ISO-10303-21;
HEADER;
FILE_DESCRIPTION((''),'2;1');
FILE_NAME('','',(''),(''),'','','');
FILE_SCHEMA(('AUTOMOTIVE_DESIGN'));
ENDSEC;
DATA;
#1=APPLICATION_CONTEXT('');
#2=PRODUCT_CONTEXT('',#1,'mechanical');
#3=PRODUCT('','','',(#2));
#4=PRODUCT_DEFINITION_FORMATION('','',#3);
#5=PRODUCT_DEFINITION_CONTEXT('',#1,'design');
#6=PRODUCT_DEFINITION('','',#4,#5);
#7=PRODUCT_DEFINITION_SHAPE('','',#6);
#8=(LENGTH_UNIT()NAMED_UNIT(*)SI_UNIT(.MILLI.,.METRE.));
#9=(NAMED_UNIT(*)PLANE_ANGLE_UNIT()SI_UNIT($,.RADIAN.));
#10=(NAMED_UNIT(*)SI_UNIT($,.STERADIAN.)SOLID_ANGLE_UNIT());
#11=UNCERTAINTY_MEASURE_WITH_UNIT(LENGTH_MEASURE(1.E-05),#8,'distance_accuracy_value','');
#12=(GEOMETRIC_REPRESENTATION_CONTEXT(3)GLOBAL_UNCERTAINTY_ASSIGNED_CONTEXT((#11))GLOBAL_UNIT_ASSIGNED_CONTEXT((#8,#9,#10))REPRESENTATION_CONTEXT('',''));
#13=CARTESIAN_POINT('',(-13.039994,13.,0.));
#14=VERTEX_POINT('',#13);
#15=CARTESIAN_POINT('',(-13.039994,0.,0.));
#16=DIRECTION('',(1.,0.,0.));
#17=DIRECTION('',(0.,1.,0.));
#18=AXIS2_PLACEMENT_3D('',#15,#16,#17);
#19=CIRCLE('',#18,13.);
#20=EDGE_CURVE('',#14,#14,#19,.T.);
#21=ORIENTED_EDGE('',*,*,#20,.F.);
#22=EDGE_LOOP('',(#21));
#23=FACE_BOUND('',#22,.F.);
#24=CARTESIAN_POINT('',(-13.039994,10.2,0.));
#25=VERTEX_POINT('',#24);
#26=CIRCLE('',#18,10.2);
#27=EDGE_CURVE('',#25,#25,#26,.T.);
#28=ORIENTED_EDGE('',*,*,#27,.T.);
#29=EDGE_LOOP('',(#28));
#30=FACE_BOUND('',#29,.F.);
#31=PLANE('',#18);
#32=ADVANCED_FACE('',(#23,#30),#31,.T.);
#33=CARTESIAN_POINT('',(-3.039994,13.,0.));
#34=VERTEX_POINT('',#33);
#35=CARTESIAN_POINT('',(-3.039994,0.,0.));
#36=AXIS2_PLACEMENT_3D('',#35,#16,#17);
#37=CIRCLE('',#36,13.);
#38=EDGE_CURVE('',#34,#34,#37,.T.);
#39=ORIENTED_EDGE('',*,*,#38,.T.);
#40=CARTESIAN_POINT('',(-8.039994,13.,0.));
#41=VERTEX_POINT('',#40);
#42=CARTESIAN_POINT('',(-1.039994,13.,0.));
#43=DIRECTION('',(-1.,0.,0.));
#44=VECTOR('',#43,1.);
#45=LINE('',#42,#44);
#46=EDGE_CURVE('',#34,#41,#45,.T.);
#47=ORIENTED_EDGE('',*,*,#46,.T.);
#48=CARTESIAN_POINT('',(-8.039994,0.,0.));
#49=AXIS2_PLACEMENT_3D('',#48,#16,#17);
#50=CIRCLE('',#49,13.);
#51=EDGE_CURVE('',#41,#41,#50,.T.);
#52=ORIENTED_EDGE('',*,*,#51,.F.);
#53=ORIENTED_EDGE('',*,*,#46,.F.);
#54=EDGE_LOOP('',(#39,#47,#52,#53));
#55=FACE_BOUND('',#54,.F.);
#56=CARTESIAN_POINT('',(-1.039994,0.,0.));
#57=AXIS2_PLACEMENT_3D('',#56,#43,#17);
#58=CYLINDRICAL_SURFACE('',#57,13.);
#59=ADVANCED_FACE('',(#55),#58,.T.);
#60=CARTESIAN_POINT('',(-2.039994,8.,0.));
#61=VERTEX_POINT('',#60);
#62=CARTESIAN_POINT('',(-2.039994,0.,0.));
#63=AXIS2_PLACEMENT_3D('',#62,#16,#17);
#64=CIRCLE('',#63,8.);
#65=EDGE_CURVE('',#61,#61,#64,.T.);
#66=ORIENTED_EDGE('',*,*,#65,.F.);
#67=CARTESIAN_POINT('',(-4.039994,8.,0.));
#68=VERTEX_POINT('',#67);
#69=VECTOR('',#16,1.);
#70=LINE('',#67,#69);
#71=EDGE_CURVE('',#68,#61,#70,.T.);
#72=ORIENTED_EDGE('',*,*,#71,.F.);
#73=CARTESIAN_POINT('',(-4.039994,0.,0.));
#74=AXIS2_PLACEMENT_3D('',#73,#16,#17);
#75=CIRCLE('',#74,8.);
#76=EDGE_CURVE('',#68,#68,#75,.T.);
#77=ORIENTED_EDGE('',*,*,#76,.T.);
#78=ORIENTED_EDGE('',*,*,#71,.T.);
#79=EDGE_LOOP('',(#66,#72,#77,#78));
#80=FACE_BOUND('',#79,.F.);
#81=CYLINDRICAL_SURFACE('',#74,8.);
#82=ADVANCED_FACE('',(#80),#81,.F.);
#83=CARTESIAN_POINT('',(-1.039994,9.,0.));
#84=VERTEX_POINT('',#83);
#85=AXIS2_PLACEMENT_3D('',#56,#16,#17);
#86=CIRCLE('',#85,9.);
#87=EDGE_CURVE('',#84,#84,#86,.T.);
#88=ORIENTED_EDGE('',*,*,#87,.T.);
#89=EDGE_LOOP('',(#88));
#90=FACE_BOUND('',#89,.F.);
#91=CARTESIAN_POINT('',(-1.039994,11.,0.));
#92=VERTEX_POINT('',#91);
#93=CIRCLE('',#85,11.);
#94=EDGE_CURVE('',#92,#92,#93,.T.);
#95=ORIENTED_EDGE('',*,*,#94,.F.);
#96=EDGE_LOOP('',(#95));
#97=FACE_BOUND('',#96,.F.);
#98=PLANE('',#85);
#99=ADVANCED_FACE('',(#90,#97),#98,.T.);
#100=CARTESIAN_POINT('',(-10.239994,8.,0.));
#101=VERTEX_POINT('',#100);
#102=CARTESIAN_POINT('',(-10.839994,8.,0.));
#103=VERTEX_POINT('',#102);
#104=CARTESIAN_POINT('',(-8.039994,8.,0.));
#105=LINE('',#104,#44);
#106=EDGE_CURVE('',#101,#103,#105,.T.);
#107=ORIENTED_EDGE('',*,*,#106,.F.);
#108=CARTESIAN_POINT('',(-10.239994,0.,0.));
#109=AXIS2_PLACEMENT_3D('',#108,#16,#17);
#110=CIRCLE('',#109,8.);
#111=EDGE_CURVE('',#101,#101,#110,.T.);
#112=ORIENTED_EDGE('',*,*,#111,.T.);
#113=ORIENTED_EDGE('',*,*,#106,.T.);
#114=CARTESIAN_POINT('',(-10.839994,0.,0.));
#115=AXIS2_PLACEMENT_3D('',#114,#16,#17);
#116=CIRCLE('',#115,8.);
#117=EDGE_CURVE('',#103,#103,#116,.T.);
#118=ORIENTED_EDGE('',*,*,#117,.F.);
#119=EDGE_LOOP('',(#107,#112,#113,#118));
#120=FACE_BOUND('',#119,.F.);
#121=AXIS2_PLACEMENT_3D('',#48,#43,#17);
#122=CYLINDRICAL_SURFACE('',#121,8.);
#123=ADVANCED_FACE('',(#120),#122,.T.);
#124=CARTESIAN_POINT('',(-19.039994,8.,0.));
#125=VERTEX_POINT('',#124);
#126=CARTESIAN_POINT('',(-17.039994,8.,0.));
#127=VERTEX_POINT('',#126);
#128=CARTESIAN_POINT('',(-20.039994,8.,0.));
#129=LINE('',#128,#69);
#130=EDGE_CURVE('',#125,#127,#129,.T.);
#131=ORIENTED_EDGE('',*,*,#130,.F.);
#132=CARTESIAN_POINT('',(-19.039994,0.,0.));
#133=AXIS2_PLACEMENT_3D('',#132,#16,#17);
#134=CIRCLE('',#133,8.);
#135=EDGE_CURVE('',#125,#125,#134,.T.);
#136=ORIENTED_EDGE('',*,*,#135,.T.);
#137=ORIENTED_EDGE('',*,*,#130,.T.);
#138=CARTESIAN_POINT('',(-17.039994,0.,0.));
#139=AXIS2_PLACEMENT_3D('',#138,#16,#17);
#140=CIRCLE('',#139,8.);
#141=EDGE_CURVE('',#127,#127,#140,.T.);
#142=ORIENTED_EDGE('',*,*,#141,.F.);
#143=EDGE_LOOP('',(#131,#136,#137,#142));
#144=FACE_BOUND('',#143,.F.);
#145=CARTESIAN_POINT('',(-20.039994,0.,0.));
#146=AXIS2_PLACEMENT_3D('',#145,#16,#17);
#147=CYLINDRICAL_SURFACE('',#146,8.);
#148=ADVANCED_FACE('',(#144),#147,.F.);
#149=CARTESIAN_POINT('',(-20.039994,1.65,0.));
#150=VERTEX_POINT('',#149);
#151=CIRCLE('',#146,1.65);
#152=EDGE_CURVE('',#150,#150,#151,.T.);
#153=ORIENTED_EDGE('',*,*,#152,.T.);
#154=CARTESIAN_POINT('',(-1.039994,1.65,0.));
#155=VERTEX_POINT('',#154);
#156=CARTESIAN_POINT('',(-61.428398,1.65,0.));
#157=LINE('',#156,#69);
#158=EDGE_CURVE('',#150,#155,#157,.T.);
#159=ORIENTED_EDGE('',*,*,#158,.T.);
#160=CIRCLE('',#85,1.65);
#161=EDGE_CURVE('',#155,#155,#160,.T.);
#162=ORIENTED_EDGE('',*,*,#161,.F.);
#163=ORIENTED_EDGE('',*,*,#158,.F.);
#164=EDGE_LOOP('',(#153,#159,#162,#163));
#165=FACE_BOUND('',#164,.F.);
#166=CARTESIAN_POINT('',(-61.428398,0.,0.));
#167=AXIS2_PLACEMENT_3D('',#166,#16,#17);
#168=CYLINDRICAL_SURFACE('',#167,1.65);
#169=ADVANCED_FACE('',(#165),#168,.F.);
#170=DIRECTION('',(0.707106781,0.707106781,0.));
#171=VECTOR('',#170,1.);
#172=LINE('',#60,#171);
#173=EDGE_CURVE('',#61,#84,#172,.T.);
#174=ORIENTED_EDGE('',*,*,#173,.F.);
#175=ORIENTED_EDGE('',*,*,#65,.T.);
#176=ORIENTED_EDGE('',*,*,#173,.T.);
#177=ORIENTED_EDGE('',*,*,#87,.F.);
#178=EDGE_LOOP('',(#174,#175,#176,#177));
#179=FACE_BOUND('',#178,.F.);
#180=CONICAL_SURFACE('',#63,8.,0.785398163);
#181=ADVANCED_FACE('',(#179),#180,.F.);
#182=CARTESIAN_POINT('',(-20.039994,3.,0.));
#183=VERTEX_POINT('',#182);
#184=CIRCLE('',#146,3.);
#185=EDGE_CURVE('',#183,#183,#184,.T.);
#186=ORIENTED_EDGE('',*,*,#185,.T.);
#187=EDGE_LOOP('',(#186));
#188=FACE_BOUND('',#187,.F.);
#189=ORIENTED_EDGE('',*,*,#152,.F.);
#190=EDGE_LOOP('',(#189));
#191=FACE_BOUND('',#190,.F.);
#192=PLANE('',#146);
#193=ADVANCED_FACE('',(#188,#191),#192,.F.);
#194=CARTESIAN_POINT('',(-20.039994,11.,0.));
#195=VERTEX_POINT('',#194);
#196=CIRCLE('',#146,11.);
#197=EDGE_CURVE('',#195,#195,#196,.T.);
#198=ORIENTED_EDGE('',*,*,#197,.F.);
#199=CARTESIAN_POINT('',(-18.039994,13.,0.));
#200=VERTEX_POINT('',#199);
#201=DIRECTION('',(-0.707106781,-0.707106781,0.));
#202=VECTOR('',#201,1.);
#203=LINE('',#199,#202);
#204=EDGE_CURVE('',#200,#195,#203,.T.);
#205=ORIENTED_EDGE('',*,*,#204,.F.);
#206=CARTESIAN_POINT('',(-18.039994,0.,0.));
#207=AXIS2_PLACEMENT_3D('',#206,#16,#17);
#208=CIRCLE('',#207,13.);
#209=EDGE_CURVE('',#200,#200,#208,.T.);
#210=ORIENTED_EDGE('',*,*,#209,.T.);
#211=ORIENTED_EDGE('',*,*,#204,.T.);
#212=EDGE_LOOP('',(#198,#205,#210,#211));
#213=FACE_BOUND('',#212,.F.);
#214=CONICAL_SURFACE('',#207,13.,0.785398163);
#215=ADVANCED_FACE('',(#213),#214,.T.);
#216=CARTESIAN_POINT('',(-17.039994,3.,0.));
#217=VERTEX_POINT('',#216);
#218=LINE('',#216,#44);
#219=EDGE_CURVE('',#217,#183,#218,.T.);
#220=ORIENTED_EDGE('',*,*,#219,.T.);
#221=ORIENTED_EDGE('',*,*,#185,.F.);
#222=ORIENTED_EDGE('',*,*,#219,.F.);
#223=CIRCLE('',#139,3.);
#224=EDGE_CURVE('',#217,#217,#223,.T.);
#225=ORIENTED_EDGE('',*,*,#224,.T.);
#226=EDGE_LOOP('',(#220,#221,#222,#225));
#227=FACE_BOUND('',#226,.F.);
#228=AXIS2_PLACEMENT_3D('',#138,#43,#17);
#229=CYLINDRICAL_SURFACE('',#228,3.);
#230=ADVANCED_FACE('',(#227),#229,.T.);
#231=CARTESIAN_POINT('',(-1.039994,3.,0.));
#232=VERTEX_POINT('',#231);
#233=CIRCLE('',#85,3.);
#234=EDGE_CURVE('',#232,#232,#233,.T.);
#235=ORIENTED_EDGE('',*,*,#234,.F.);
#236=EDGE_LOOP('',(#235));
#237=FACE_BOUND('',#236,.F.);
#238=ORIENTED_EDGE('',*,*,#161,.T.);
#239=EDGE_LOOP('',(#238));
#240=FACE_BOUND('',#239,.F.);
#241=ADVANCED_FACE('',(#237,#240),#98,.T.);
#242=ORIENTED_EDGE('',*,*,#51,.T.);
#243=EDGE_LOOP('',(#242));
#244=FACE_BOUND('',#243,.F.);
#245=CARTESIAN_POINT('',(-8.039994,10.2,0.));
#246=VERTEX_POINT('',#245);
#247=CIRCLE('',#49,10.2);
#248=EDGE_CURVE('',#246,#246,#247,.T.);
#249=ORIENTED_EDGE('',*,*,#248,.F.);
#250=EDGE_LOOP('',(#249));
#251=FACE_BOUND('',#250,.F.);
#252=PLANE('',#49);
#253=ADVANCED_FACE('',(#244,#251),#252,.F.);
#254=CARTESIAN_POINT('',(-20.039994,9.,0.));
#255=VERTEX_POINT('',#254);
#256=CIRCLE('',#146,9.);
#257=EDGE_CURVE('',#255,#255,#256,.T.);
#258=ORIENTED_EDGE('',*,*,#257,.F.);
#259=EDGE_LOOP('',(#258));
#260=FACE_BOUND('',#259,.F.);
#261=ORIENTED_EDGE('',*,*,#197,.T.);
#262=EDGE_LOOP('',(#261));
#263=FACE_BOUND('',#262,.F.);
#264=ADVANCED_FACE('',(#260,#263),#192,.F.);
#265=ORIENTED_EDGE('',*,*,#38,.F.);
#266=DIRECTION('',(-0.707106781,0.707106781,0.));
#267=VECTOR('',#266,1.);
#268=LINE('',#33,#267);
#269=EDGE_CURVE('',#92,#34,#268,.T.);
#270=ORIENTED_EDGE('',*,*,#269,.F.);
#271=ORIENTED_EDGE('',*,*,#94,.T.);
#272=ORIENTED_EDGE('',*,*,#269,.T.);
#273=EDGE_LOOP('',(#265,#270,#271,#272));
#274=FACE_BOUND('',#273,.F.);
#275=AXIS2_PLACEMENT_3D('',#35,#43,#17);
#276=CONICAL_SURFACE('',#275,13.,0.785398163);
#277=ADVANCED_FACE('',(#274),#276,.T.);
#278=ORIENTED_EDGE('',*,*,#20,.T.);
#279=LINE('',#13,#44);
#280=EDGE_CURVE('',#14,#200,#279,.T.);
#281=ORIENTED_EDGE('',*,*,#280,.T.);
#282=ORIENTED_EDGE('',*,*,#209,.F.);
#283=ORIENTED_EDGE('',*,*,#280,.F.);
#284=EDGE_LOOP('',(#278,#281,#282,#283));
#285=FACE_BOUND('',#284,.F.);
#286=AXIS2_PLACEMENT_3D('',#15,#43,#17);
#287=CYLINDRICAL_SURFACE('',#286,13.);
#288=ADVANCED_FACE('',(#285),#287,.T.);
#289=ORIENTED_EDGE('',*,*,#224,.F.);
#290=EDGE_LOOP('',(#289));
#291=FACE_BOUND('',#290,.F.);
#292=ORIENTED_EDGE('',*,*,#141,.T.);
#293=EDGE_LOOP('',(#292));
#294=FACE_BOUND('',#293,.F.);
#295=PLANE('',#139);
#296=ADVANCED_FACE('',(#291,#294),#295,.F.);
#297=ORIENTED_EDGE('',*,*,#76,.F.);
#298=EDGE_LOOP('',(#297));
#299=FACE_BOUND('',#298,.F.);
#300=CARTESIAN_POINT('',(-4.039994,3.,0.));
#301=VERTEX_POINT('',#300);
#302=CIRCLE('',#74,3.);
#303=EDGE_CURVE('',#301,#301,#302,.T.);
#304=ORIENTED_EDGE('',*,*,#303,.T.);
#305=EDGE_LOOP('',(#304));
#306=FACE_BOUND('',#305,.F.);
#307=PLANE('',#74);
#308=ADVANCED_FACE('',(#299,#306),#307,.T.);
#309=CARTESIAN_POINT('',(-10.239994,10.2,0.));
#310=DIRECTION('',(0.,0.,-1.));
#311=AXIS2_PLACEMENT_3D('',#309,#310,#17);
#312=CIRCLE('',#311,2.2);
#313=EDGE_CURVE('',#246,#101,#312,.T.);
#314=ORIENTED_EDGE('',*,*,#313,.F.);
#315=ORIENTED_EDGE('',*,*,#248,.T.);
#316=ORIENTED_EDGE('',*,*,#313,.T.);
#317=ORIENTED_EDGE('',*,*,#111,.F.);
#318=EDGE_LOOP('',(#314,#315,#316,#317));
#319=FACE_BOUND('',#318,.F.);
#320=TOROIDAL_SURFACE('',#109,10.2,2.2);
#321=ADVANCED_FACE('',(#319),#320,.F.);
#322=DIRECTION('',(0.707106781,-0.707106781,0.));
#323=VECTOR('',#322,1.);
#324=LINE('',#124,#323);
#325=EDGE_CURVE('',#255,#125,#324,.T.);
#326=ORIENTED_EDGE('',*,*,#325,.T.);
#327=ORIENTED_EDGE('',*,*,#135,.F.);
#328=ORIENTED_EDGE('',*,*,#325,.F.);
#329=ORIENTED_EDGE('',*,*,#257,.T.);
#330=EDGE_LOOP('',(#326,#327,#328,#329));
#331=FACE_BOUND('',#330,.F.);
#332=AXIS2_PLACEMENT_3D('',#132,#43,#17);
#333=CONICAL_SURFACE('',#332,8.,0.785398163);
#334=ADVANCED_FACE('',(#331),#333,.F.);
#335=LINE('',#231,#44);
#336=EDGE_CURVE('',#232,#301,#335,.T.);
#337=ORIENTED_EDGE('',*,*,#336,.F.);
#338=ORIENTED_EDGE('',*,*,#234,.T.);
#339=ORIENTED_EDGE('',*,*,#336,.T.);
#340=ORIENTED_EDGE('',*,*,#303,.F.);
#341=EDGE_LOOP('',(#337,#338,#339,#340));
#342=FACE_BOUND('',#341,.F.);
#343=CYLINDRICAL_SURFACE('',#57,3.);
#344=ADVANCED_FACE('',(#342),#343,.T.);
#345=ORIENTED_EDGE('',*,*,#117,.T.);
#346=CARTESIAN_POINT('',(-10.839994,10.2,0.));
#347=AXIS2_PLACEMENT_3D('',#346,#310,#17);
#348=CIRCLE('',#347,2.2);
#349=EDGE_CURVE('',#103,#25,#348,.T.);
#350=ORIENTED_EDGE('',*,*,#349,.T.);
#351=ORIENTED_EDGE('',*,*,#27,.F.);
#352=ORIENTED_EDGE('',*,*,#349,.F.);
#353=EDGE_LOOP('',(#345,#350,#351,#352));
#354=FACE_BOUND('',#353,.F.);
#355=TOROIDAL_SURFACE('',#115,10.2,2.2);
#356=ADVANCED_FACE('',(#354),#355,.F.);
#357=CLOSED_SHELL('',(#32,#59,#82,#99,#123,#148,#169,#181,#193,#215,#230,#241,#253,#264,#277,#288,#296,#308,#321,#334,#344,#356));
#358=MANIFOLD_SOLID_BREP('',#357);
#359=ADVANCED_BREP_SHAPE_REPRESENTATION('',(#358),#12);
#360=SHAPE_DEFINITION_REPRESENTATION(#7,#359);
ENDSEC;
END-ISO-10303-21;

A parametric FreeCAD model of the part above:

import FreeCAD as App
import Part
import Sketcher
Q = App.Units.Quantity


def edges_at(feature, points):
    """Names of the edges that pass closest to the given points."""
    edges = feature.Shape.Edges
    near = lambda p: min(range(len(edges)), key=lambda i: edges[i].distToShape(Part.Vertex(*p))[0])
    return sorted({f"Edge{near(p) + 1}" for p in points})

doc = App.newDocument("Part")
params = doc.addObject("Spreadsheet::Sheet", "Params")
for row, (alias, value) in enumerate([
    ("sketch1_width", "19 mm"),
    ("sketch1_width2", "3 mm"),
    ("sketch1_width3", "7 mm"),
    ("revolution_angle", "360 deg"),
    ("chamfer_size", "1 mm"),
    ("chamfer2_size", "2 mm"),
    ("fillet_radius", "2.2 mm"),
    ("sketch2_diameter", "3.3 mm"),
    ("hole_diameter", "3.3 mm"),
], start=1):
    params.set(f"A{row}", alias)
    params.set(f"B{row}", "=" + value)
    params.setAlias(f"B{row}", alias)

body = doc.addObject("PartDesign::Body", "Body")

# Sketch on XY plane
sketch1 = doc.addObject("Sketcher::SketchObject", "Sketch")
body.addObject(sketch1)
sketch1.AttachmentSupport = (doc.XY_Plane, [""])
sketch1.MapMode = "FlatFace"
sketch1.addGeometry([
    Part.LineSegment(App.Vector(-20.039994, 3, 0), App.Vector(-20.039994, 0, 0)),  # 0
    Part.LineSegment(App.Vector(-20.039994, 0, 0), App.Vector(-1.039994, 0, 0)),  # 1
    Part.LineSegment(App.Vector(-1.039994, 0, 0), App.Vector(-1.039994, 3, 0)),  # 2
    Part.LineSegment(App.Vector(-1.039994, 3, 0), App.Vector(-4.039994, 3, 0)),  # 3
    Part.LineSegment(App.Vector(-4.039994, 3, 0), App.Vector(-4.039994, 8, 0)),  # 4
    Part.LineSegment(App.Vector(-4.039994, 8, 0), App.Vector(-1.039994, 8, 0)),  # 5
    Part.LineSegment(App.Vector(-1.039994, 8, 0), App.Vector(-1.039994, 13, 0)),  # 6
    Part.LineSegment(App.Vector(-1.039994, 13, 0), App.Vector(-8.039994, 13, 0)),  # 7
    Part.LineSegment(App.Vector(-8.039994, 13, 0), App.Vector(-8.039994, 8, 0)),  # 8
    Part.LineSegment(App.Vector(-8.039994, 8, 0), App.Vector(-13.039994, 8, 0)),  # 9
    Part.LineSegment(App.Vector(-13.039994, 8, 0), App.Vector(-13.039994, 13, 0)),  # 10
    Part.LineSegment(App.Vector(-13.039994, 13, 0), App.Vector(-20.039994, 13, 0)),  # 11
    Part.LineSegment(App.Vector(-20.039994, 13, 0), App.Vector(-20.039994, 8, 0)),  # 12
    Part.LineSegment(App.Vector(-20.039994, 8, 0), App.Vector(-17.039994, 8, 0)),  # 13
    Part.LineSegment(App.Vector(-17.039994, 8, 0), App.Vector(-17.039994, 3, 0)),  # 14
    Part.LineSegment(App.Vector(-17.039994, 3, 0), App.Vector(-20.039994, 3, 0)),  # 15
], False)
sketch1.addConstraint([
    Sketcher.Constraint("Coincident", 0, 2, 1, 1),
    Sketcher.Constraint("Coincident", 1, 2, 2, 1),
    Sketcher.Constraint("Coincident", 2, 2, 3, 1),
    Sketcher.Constraint("Coincident", 3, 2, 4, 1),
    Sketcher.Constraint("Coincident", 4, 2, 5, 1),
    Sketcher.Constraint("Coincident", 5, 2, 6, 1),
    Sketcher.Constraint("Coincident", 6, 2, 7, 1),
    Sketcher.Constraint("Coincident", 7, 2, 8, 1),
    Sketcher.Constraint("Coincident", 8, 2, 9, 1),
    Sketcher.Constraint("Coincident", 9, 2, 10, 1),
    Sketcher.Constraint("Coincident", 10, 2, 11, 1),
    Sketcher.Constraint("Coincident", 11, 2, 12, 1),
    Sketcher.Constraint("Coincident", 12, 2, 13, 1),
    Sketcher.Constraint("Coincident", 13, 2, 14, 1),
    Sketcher.Constraint("Coincident", 14, 2, 15, 1),
    Sketcher.Constraint("Coincident", 15, 2, 0, 1),
    Sketcher.Constraint("Vertical", 0),
    Sketcher.Constraint("Horizontal", 1),
    Sketcher.Constraint("Vertical", 2),
    Sketcher.Constraint("Horizontal", 3),
    Sketcher.Constraint("Vertical", 4),
    Sketcher.Constraint("Horizontal", 5),
    Sketcher.Constraint("Vertical", 6),
    Sketcher.Constraint("Horizontal", 7),
    Sketcher.Constraint("Vertical", 8),
    Sketcher.Constraint("Horizontal", 9),
    Sketcher.Constraint("Vertical", 10),
    Sketcher.Constraint("Horizontal", 11),
    Sketcher.Constraint("Vertical", 12),
    Sketcher.Constraint("Horizontal", 13),
    Sketcher.Constraint("Vertical", 14),
    Sketcher.Constraint("Horizontal", 15),
    Sketcher.Constraint("PointOnObject", 0, 2, -1),
    Sketcher.Constraint("Horizontal", 5, 2, 8, 2),
    Sketcher.Constraint("Horizontal", 7, 2, 10, 2),
    Sketcher.Constraint("Horizontal", 9, 2, 12, 2),
    Sketcher.Constraint("Horizontal", 3, 2, 14, 2),
    Sketcher.Constraint("Vertical", 2, 2, 5, 2),
    Sketcher.Constraint("Vertical", 0, 2, 11, 2),
    Sketcher.Constraint("Equal", 7, 11),
    Sketcher.Constraint("Equal", 5, 13),
    Sketcher.Constraint("Equal", 15, 0),
    Sketcher.Constraint("Equal", 9, 4),
    Sketcher.Constraint("Equal", 4, 6),
    Sketcher.Constraint("DistanceX", 1, 1, 1, 2, Q("19 mm")),
    Sketcher.Constraint("DistanceX", 3, 2, 3, 1, Q("3 mm")),
    Sketcher.Constraint("DistanceX", 7, 2, 7, 1, Q("7 mm")),
    Sketcher.Constraint("DistanceX", 0, 2, -1, 1, Q("20.039994 mm")),
])
sketch1.setExpression("Constraints[44]", "Params.sketch1_width")
sketch1.setExpression("Constraints[45]", "Params.sketch1_width2")
sketch1.setExpression("Constraints[46]", "Params.sketch1_width3")
revolution = doc.addObject("PartDesign::Revolution", "Revolution")
body.addObject(revolution)
revolution.Profile = sketch1
revolution.ReferenceAxis = (sketch1, ["H_Axis"])
revolution.setExpression("Angle", "Params.revolution_angle")
doc.recompute()

chamfer = doc.addObject("PartDesign::Chamfer", "Chamfer")
body.addObject(chamfer)
chamfer.Base = (revolution, edges_at(revolution, [(-1.04, -8, 0), (-20.04, -8, 0)]))
chamfer.setExpression("Size", "Params.chamfer_size")
doc.recompute()

chamfer2 = doc.addObject("PartDesign::Chamfer", "Chamfer001")
body.addObject(chamfer2)
chamfer2.Base = (chamfer, edges_at(chamfer, [(-20.04, -13, 0), (-1.04, -13, 0)]))
chamfer2.setExpression("Size", "Params.chamfer2_size")
doc.recompute()

fillet = doc.addObject("PartDesign::Fillet", "Fillet")
body.addObject(fillet)
fillet.Base = (chamfer2, edges_at(chamfer2, [(-13.04, -8, 0), (-8.04, -8, 0)]))
fillet.setExpression("Radius", "Params.fillet_radius")

# Sketch on YZ plane
sketch2 = doc.addObject("Sketcher::SketchObject", "Sketch001")
body.addObject(sketch2)
sketch2.AttachmentSupport = (doc.YZ_Plane, [""])
sketch2.MapMode = "FlatFace"
sketch2.AttachmentOffset = App.Placement(App.Vector(0, 0, -20.039994), App.Rotation())
sketch2.addGeometry(Part.Circle(App.Vector(0, 0, 0), App.Vector(0, 0, 1), 1.65), False)
sketch2.addConstraint([
    Sketcher.Constraint("Coincident", 0, 3, -1, 1),
    Sketcher.Constraint("Diameter", 0, Q("3.3 mm")),
])
sketch2.setExpression("Constraints[1]", "Params.sketch2_diameter")
doc.recompute()
hole = doc.addObject("PartDesign::Hole", "Hole")
body.addObject(hole)
hole.Profile = sketch2
hole.ThreadType = "None"
hole.setExpression("Diameter", "Params.hole_diameter")
hole.DepthType = "ThroughAll"
hole.Reversed = True

doc.recompute()
